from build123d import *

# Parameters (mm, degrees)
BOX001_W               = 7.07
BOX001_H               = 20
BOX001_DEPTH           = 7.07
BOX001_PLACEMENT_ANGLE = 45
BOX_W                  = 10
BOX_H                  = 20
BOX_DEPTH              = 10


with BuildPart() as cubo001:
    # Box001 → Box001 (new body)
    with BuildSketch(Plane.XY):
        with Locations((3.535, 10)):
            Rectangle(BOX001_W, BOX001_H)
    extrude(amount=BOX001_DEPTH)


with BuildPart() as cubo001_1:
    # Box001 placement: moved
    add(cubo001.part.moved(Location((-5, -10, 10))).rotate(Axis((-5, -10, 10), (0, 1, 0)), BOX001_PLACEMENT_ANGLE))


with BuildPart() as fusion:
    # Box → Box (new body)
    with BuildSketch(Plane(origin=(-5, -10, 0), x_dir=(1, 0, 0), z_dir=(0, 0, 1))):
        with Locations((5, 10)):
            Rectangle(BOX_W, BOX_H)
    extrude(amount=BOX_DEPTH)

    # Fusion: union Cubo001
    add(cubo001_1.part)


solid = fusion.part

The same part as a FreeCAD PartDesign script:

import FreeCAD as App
import Part
import Sketcher
from FreeCAD import Vector
Q = App.Units.Quantity

doc = App.newDocument("Part")
body = doc.addObject("PartDesign::Body", "Body")

# Sketch on XY plane
sketch1 = body.newObject("Sketcher::SketchObject", "Sketch")
sketch1.AttachmentSupport = (doc.getObject("XY_Plane"), [""])
sketch1.MapMode = "FlatFace"
sketch1.addGeometry([
    Part.LineSegment(Vector(0, 20, 0), Vector(0, 0, 0)),
    Part.LineSegment(Vector(0, 0, 0), Vector(7.07, 0, 0)),
    Part.LineSegment(Vector(7.07, 0, 0), Vector(7.07, 20, 0)),
    Part.LineSegment(Vector(7.07, 20, 0), Vector(0, 20, 0)),
], False)
sketch1.addConstraint([
    Sketcher.Constraint("Coincident", 0, 2, 1, 1),
    Sketcher.Constraint("Coincident", 1, 2, 2, 1),
    Sketcher.Constraint("Coincident", 2, 2, 3, 1),
    Sketcher.Constraint("Coincident", 3, 2, 0, 1),
    Sketcher.Constraint("Vertical", 0),
    Sketcher.Constraint("Horizontal", 1),
    Sketcher.Constraint("Vertical", 2),
    Sketcher.Constraint("Horizontal", 3),
    Sketcher.Constraint("Coincident", 0, 2, -1, 1),
    Sketcher.Constraint("DistanceY", 0, 2, 0, 1, Q("20 mm")),
    Sketcher.Constraint("DistanceX", 1, 1, 1, 2, Q("7.07 mm")),
])
pad1 = body.newObject("PartDesign::Pad", "Pad")
pad1.Profile = sketch1
pad1.Length = 7.07
body2 = doc.addObject("PartDesign::Body", "Body001")
doc.recompute()

body.Placement = App.Placement(Vector(-5, -10, 10), App.Rotation(Vector(0, 1, 0), 45))
boolean = body2.newObject("PartDesign::Boolean", "Boolean")
boolean.Type = "Fuse"
boolean.addObjects([body])
body3 = doc.addObject("PartDesign::Body", "Body002")

# Sketch on XY plane
sketch2 = body3.newObject("Sketcher::SketchObject", "Sketch001")
sketch2.AttachmentSupport = (doc.getObject("XY_Plane002"), [""])
sketch2.MapMode = "FlatFace"
sketch2.addGeometry([
    Part.LineSegment(Vector(-5, 10, 0), Vector(-5, -10, 0)),
    Part.LineSegment(Vector(-5, -10, 0), Vector(5, -10, 0)),
    Part.LineSegment(Vector(5, -10, 0), Vector(5, 10, 0)),
    Part.LineSegment(Vector(5, 10, 0), Vector(-5, 10, 0)),
], False)
sketch2.addConstraint([
    Sketcher.Constraint("Coincident", 0, 2, 1, 1),
    Sketcher.Constraint("Coincident", 1, 2, 2, 1),
    Sketcher.Constraint("Coincident", 2, 2, 3, 1),
    Sketcher.Constraint("Coincident", 3, 2, 0, 1),
    Sketcher.Constraint("Vertical", 0),
    Sketcher.Constraint("Horizontal", 1),
    Sketcher.Constraint("Vertical", 2),
    Sketcher.Constraint("Horizontal", 3),
    Sketcher.Constraint("Symmetric", 0, 2, 2, 2, -1, 1),
    Sketcher.Constraint("DistanceX", 1, 1, 1, 2, Q("10 mm")),
    Sketcher.Constraint("DistanceY", 0, 2, 0, 1, Q("20 mm")),
])
pad2 = body3.newObject("PartDesign::Pad", "Pad001")
pad2.Profile = sketch2
pad2.Length = 10
doc.recompute()

boolean2 = body3.newObject("PartDesign::Boolean", "Boolean001")
boolean2.Type = "Fuse"
boolean2.addObjects([body2])

doc.recompute()
